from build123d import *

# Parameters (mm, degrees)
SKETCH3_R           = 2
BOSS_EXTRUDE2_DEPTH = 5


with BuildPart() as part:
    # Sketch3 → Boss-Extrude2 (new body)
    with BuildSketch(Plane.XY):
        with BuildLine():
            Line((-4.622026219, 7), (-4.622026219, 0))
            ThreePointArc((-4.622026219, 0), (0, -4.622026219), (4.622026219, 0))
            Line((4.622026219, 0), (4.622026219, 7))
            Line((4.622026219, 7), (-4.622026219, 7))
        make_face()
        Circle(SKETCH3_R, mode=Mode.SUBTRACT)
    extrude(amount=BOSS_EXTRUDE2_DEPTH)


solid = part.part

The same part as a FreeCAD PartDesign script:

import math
import FreeCAD as App
import Part
import Sketcher
from FreeCAD import Vector
Q = App.Units.Quantity

doc = App.newDocument("Part")
body = doc.addObject("PartDesign::Body", "Body")

sketch1 = doc.addObject("Sketcher::SketchObject", "Sketch")
body.addObject(sketch1)
sketch1.AttachmentSupport = (doc.XY_Plane, [""])
sketch1.MapMode = "FlatFace"
sketch1.addGeometry([
    Part.LineSegment(Vector(-4.6, 7, 0), Vector(-4.6, 0, 0)),
    Part.ArcOfCircle(Part.Circle(Vector(0, 0, 0), Vector(0, 0, 1), 4.6), math.radians(180), math.radians(360)),
    Part.LineSegment(Vector(4.6, 0, 0), Vector(4.6, 7, 0)),
    Part.LineSegment(Vector(4.6, 7, 0), Vector(-4.6, 7, 0)),
    Part.Circle(Vector(0, 0, 0), Vector(0, 0, 1), 2),
], False)
sketch1.addConstraint([
    Sketcher.Constraint("Tangent", 0, 2, 1, 1),
    Sketcher.Constraint("Tangent", 1, 2, 2, 1),
    Sketcher.Constraint("Coincident", 2, 2, 3, 1),
    Sketcher.Constraint("Coincident", 3, 2, 0, 1),
    Sketcher.Constraint("Vertical", 0),
    Sketcher.Constraint("Vertical", 2),
    Sketcher.Constraint("Horizontal", 3),
    Sketcher.Constraint("Coincident", 1, 3, -1, 1),
    Sketcher.Constraint("Coincident", 4, 3, -1, 1),
    Sketcher.Constraint("Diameter", 4, Q("4 mm")),
    Sketcher.Constraint("DistanceY", 0, 2, 0, 1, Q("7 mm")),
    Sketcher.Constraint("Radius", 1, Q("4.622026 mm")),
])
pad1 = doc.addObject("PartDesign::Pad", "Pad")
body.addObject(pad1)
pad1.Profile = sketch1
pad1.Length = 5

doc.recompute()
